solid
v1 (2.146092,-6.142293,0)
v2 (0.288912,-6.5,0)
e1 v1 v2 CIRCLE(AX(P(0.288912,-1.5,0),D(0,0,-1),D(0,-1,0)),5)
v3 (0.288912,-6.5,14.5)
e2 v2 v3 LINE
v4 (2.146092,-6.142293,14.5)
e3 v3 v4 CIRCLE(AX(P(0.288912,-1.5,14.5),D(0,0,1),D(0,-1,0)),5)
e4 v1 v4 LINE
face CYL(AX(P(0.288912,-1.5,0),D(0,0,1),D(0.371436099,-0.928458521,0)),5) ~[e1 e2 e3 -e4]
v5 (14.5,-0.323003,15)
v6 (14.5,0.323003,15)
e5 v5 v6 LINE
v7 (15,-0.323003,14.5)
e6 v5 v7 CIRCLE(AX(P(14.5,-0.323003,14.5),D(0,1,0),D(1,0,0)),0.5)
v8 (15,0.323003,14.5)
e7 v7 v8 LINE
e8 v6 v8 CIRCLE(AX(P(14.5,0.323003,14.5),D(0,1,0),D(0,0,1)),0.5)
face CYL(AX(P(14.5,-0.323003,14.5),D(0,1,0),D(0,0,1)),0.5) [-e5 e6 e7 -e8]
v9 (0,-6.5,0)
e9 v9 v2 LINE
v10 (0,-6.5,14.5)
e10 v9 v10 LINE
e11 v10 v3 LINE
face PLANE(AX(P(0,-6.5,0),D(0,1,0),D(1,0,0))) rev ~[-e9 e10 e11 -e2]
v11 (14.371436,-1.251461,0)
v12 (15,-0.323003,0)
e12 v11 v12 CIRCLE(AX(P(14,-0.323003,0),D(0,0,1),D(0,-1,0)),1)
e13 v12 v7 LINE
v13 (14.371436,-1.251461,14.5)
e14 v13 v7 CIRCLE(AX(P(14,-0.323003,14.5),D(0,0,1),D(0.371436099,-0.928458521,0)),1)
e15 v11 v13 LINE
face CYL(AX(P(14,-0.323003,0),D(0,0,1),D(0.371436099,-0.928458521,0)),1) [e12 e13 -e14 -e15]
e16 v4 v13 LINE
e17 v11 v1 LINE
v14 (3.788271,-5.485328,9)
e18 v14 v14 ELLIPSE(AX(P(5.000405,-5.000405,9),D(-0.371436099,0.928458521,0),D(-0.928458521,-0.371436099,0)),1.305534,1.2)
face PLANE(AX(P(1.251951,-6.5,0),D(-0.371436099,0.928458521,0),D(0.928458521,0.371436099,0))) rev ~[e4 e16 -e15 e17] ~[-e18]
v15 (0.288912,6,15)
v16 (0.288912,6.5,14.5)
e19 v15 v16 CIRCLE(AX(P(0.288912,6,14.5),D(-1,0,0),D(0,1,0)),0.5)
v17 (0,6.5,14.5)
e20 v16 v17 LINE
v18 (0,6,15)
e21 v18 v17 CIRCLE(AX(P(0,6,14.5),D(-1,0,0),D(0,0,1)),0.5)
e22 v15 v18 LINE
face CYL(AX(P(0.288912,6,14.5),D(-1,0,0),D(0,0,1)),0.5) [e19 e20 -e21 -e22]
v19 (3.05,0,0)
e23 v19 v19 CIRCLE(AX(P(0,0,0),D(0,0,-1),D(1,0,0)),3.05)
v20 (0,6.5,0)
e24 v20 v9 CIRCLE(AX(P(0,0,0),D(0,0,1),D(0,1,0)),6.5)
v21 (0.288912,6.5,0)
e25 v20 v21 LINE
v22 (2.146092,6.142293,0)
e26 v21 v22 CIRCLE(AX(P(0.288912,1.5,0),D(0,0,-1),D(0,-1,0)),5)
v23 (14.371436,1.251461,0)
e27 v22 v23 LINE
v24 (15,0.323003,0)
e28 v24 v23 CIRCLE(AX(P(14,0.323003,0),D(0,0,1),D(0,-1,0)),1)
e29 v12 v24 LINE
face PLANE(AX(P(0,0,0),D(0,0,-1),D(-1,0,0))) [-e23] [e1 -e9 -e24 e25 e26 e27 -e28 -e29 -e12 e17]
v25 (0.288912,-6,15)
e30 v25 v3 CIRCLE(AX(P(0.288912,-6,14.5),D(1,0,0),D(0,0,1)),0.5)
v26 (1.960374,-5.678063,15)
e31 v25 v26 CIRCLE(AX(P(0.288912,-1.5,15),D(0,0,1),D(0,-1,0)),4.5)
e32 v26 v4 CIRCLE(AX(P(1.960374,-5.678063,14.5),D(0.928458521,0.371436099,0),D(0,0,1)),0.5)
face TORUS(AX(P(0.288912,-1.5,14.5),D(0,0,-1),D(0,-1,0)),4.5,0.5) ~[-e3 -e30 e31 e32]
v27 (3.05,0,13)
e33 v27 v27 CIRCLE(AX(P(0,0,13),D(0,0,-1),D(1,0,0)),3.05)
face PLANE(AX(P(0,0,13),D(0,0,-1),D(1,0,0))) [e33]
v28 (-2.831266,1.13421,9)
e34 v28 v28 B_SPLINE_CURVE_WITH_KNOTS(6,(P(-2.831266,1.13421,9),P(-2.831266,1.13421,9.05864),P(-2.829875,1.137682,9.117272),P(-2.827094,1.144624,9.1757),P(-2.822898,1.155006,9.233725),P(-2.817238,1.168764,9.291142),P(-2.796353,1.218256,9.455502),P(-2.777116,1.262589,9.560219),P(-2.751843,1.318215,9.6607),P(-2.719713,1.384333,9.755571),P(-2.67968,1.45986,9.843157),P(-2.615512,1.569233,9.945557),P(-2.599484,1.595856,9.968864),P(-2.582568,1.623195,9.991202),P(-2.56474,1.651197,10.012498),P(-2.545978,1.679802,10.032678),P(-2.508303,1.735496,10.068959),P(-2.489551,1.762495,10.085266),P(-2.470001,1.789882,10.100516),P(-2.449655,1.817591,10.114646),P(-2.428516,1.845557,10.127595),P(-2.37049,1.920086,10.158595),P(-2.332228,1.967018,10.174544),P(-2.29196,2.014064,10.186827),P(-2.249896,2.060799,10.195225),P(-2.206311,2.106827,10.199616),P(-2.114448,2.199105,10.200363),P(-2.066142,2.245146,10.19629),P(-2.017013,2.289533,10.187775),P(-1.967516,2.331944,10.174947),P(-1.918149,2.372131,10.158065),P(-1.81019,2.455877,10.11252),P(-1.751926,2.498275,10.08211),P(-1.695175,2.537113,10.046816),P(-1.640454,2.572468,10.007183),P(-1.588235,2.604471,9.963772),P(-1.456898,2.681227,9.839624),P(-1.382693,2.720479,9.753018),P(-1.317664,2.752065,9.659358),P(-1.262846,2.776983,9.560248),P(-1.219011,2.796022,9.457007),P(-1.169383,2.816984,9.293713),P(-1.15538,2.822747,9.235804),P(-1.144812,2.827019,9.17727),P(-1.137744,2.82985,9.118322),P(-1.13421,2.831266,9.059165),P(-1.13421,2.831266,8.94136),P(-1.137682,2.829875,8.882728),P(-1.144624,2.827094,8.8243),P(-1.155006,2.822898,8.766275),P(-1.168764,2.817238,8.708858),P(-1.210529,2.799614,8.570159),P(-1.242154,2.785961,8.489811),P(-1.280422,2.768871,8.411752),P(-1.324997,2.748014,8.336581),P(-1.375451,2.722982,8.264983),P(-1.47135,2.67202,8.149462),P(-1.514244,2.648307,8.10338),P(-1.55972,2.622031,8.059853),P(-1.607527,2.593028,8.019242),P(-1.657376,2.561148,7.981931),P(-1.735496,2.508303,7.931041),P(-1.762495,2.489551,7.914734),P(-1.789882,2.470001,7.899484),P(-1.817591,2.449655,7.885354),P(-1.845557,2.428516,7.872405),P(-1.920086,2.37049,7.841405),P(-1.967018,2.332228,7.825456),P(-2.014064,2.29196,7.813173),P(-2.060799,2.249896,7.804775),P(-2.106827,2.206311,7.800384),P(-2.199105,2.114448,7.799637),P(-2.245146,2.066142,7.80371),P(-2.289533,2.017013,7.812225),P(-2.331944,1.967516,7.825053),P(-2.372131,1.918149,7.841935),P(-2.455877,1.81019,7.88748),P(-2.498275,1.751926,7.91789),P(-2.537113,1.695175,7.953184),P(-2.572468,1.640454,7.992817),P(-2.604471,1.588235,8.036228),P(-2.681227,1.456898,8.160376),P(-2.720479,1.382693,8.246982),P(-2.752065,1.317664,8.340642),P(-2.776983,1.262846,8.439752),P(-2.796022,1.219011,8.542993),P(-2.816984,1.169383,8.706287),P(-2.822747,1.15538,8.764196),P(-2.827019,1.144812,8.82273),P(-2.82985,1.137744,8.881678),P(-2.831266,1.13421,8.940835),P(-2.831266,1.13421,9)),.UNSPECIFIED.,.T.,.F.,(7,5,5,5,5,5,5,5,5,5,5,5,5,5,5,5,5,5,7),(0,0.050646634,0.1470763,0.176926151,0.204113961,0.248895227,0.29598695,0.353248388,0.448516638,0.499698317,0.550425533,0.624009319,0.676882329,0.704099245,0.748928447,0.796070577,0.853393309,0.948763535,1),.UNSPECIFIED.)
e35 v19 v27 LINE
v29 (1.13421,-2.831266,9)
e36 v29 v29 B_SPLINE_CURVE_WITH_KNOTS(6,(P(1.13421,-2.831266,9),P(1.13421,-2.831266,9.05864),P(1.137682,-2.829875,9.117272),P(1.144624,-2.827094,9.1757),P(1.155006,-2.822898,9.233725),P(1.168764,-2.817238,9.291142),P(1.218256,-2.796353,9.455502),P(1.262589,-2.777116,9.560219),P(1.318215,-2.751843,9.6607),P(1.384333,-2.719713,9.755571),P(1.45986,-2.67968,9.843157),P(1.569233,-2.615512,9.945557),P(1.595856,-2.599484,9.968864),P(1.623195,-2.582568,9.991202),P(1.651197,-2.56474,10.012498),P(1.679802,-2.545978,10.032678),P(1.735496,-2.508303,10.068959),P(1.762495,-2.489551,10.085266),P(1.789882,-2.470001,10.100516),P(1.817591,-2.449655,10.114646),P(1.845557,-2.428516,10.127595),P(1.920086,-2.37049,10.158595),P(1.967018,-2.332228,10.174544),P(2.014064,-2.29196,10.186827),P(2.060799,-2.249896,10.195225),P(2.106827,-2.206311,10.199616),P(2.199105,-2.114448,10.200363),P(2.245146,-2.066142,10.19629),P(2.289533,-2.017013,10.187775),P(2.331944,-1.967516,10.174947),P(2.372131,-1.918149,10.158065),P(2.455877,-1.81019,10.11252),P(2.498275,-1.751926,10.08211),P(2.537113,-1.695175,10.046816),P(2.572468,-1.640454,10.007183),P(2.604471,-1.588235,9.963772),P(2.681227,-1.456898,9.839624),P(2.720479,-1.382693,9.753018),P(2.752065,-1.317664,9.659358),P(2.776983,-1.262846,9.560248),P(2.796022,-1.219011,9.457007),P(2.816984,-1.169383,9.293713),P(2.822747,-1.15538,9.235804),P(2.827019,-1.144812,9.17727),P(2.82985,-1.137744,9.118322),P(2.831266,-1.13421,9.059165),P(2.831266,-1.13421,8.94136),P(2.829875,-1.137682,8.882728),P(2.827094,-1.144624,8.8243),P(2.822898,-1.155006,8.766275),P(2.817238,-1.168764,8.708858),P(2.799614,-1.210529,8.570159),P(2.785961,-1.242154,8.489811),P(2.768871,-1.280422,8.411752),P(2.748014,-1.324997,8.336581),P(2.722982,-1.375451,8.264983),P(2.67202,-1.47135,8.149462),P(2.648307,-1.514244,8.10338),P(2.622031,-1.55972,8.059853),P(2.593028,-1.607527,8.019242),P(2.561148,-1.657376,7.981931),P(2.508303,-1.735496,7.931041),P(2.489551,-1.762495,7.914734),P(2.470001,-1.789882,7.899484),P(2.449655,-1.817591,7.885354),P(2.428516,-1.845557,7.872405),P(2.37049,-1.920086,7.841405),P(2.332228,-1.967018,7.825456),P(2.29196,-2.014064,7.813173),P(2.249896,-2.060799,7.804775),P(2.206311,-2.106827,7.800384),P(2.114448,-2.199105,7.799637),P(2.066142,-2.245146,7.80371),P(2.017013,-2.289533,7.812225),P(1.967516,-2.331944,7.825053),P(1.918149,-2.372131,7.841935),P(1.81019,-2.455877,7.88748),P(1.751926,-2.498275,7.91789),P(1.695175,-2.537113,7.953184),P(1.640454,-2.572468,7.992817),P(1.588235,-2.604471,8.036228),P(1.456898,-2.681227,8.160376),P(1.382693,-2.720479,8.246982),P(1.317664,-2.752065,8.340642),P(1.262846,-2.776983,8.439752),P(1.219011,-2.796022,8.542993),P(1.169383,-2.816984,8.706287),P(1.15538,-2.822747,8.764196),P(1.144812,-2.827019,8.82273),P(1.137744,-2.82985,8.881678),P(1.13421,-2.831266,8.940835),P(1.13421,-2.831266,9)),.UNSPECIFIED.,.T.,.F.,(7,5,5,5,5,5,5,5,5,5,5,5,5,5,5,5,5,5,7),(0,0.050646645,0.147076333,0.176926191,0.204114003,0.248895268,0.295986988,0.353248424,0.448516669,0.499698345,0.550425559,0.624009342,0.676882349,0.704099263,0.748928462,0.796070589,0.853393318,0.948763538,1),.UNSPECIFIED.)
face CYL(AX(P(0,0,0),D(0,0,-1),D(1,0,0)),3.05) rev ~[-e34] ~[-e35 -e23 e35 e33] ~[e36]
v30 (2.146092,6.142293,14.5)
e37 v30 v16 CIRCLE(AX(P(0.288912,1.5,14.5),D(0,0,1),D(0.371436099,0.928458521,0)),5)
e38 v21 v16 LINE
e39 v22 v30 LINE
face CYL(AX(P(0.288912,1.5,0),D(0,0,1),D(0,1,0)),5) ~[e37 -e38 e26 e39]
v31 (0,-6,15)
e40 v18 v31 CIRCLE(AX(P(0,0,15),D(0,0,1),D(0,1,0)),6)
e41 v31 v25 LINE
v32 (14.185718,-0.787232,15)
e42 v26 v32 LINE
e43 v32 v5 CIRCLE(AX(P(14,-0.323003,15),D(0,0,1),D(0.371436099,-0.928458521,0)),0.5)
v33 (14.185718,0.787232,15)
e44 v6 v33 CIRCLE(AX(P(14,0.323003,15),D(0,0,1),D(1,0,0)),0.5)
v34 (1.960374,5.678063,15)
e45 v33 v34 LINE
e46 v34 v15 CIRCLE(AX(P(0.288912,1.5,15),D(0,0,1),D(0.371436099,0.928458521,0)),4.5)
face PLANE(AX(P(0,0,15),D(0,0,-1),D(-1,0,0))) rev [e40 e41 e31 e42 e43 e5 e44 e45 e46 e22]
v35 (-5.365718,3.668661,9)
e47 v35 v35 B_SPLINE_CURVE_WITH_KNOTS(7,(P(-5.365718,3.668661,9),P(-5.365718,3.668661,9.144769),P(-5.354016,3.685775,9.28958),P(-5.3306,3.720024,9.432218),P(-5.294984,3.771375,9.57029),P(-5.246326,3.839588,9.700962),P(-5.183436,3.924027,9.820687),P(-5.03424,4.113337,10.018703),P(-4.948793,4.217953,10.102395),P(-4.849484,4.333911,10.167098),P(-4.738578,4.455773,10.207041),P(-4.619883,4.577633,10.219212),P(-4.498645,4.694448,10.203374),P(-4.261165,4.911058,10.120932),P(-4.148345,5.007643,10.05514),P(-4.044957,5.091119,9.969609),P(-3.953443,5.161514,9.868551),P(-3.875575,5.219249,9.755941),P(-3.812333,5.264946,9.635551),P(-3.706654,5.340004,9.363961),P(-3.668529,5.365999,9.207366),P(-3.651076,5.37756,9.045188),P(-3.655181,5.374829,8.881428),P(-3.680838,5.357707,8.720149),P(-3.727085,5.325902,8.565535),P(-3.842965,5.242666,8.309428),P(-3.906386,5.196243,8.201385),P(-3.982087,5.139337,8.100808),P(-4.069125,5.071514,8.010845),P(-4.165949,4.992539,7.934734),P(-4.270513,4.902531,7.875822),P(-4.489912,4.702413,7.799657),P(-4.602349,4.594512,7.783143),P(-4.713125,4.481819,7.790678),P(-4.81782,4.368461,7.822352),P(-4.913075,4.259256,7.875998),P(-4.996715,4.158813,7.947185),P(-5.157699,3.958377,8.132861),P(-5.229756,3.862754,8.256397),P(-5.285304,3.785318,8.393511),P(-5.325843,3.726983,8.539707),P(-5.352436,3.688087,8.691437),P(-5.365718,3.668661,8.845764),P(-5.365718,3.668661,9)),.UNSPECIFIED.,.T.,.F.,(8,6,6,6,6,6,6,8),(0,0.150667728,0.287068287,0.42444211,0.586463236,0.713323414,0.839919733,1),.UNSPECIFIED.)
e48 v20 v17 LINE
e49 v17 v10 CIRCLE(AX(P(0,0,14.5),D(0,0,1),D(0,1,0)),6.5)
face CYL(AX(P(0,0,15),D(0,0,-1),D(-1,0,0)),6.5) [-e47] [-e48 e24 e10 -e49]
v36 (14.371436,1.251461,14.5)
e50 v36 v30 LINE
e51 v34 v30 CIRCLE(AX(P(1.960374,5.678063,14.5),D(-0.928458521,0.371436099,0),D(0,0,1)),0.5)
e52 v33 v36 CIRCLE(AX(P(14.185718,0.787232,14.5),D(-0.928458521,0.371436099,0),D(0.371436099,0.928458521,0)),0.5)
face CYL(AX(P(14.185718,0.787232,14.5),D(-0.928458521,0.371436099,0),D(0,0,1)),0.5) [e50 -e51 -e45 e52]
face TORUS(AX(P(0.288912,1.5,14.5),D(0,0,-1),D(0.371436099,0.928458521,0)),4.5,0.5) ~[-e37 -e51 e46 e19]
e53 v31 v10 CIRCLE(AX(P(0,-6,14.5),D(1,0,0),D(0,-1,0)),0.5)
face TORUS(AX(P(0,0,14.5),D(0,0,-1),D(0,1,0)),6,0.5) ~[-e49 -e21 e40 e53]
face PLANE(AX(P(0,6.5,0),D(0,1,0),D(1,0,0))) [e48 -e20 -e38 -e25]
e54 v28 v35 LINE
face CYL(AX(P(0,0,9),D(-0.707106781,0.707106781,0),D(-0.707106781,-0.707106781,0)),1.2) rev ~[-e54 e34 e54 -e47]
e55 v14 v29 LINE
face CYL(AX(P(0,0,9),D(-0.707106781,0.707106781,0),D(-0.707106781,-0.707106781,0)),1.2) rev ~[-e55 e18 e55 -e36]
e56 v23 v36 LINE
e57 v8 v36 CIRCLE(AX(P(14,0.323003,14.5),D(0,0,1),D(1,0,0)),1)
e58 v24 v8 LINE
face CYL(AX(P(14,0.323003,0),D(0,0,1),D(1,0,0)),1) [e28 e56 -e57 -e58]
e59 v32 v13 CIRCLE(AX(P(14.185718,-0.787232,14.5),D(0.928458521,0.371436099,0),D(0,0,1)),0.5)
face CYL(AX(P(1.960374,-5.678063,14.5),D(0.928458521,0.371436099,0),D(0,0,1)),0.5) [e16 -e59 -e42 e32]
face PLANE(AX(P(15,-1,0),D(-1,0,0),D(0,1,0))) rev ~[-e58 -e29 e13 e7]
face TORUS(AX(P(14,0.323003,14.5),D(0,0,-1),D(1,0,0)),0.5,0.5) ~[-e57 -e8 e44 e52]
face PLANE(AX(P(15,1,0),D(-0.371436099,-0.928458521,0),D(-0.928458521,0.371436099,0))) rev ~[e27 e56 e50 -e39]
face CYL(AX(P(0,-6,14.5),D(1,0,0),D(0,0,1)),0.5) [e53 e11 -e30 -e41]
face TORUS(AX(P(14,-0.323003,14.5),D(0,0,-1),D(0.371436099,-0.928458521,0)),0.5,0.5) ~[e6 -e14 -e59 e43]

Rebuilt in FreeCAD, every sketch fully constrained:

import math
import FreeCAD as App
import Part
import Sketcher
from FreeCAD import Vector
Q = App.Units.Quantity


def edges_at(feature, points):
    """Names of the edges that pass closest to the given points."""
    edges = feature.Shape.Edges
    near = lambda p: min(range(len(edges)), key=lambda i: edges[i].distToShape(Part.Vertex(*p))[0])
    return sorted({f"Edge{near(p) + 1}" for p in points})


def add_polygon(sketch, points):
    """Adds a closed chain of lines whose ends are joined by coincident constraints."""
    first, n = sketch.GeometryCount, len(points)
    for a, b in zip(points, points[1:] + points[:1]):
        sketch.addGeometry(Part.LineSegment(App.Vector(*a, 0), App.Vector(*b, 0)), False)
    for i in range(n):
        sketch.addConstraint(Sketcher.Constraint("Coincident", first + i, 2, first + (i + 1) % n, 1))

doc = App.newDocument("Part")
params = doc.addObject("Spreadsheet::Sheet", "Params")
for row, (alias, value) in enumerate([
    ("sketch1_height", "15 mm"),
    ("sketch1_width", "6.5 mm"),
    ("revolution_angle", "360 deg"),
    ("sketch2_radius", "6.5 mm"),
    ("sketch2_height", "2 mm"),
    ("pad1_length", "15 mm"),
    ("fillet_radius", "5 mm"),
    ("fillet2_radius", "1 mm"),
    ("sketch3_diameter", "6.1 mm"),
    ("pocket1_length", "13 mm"),
    ("fillet3_radius", "0.5 mm"),
    ("sketch4_diameter", "2.4 mm"),
    ("pocket2_length", "25 mm"),
], start=1):
    params.set(f"A{row}", alias)
    params.set(f"B{row}", "=" + value)
    params.setAlias(f"B{row}", alias)

body = doc.addObject("PartDesign::Body", "Body")

# Sketch on XZ plane
sketch1 = body.newObject("Sketcher::SketchObject", "Sketch")
sketch1.AttachmentSupport = (doc.getObject("XZ_Plane"), [""])
sketch1.MapMode = "FlatFace"
add_polygon(sketch1, [(0, 0), (0, 15), (-6, 15), (-6, 0)])  # lines 0-3
sketch1.addConstraint(Sketcher.Constraint("Vertical", 0))
sketch1.addConstraint(Sketcher.Constraint("Horizontal", 1))
sketch1.addConstraint(Sketcher.Constraint("Vertical", 2))
sketch1.addConstraint(Sketcher.Constraint("Horizontal", 3))
sketch1.addConstraint(Sketcher.Constraint("Coincident", 3, 2, -1, 1))
sketch1.addConstraint(Sketcher.Constraint("DistanceY", 0, 1, 0, 2, Q("15 mm")))
sketch1.addConstraint(Sketcher.Constraint("DistanceX", 1, 2, 1, 1, Q("6.5 mm")))
sketch1.setExpression("Constraints[9]", "Params.sketch1_height")
sketch1.setExpression("Constraints[10]", "Params.sketch1_width")
revolution = body.newObject("PartDesign::Revolution", "Revolution")
revolution.Profile = sketch1
revolution.ReferenceAxis = (sketch1, ["V_Axis"])
revolution.setExpression("Angle", "Params.revolution_angle")

# Sketch on XY plane
sketch2 = body.newObject("Sketcher::SketchObject", "Sketch001")
sketch2.AttachmentSupport = (doc.getObject("XY_Plane"), [""])
sketch2.MapMode = "FlatFace"
sketch2.addGeometry(Part.ArcOfCircle(Part.Circle(Vector(0, 0, 0), Vector(0, 0, 1), 6.5), math.radians(90), math.radians(270)), False)
sketch2.addGeometry(Part.LineSegment(Vector(0, -6.5, 0), Vector(1.3, -6.5, 0)), False)
sketch2.addGeometry(Part.LineSegment(Vector(1.3, -6.5, 0), Vector(15, -1, 0)), False)
sketch2.addGeometry(Part.LineSegment(Vector(15, -1, 0), Vector(15, 1, 0)), False)
sketch2.addGeometry(Part.LineSegment(Vector(15, 1, 0), Vector(1.3, 6.5, 0)), False)
sketch2.addGeometry(Part.LineSegment(Vector(1.3, 6.5, 0), Vector(0, 6.5, 0)), False)
sketch2.addConstraint(Sketcher.Constraint("Tangent", 0, 2, 1, 1))
sketch2.addConstraint(Sketcher.Constraint("Coincident", 1, 2, 2, 1))
sketch2.addConstraint(Sketcher.Constraint("Coincident", 2, 2, 3, 1))
sketch2.addConstraint(Sketcher.Constraint("Coincident", 3, 2, 4, 1))
sketch2.addConstraint(Sketcher.Constraint("Coincident", 4, 2, 5, 1))
sketch2.addConstraint(Sketcher.Constraint("Tangent", 5, 2, 0, 1))
sketch2.addConstraint(Sketcher.Constraint("Horizontal", 1))
sketch2.addConstraint(Sketcher.Constraint("Vertical", 3))
sketch2.addConstraint(Sketcher.Constraint("Horizontal", 5))
sketch2.addConstraint(Sketcher.Constraint("Coincident", 0, 3, -1, 1))
sketch2.addConstraint(Sketcher.Constraint("Vertical", 1, 2, 4, 2))
sketch2.addConstraint(Sketcher.Constraint("Equal", 2, 4))
sketch2.addConstraint(Sketcher.Constraint("Radius", 0, Q("6.5 mm")))
sketch2.addConstraint(Sketcher.Constraint("DistanceY", 3, 1, 3, 2, Q("2 mm")))
sketch2.addConstraint(Sketcher.Constraint("DistanceX", -1, 1, 2, 2, Q("15 mm")))
sketch2.addConstraint(Sketcher.Constraint("DistanceX", 1, 1, 1, 2, Q("1.251951 mm")))
sketch2.setExpression("Constraints[12]", "Params.sketch2_radius")
sketch2.setExpression("Constraints[13]", "Params.sketch2_height")
pad1 = body.newObject("PartDesign::Pad", "Pad")
pad1.Profile = sketch2
pad1.setExpression("Length", "Params.pad1_length")
doc.recompute()

fillet = body.newObject("PartDesign::Fillet", "Fillet")
fillet.Base = (pad1, edges_at(pad1, [(1.252, 6.5, 7.5), (1.252, -6.5, 7.5)]))
fillet.setExpression("Radius", "Params.fillet_radius")
doc.recompute()

fillet2 = body.newObject("PartDesign::Fillet", "Fillet001")
fillet2.Base = (fillet, edges_at(fillet, [(15, 1, 7.5), (15, -1, 7.5)]))
fillet2.setExpression("Radius", "Params.fillet2_radius")

# Sketch on XY plane
sketch3 = body.newObject("Sketcher::SketchObject", "Sketch002")
sketch3.AttachmentSupport = (doc.getObject("XY_Plane"), [""])
sketch3.MapMode = "FlatFace"
sketch3.addGeometry(Part.Circle(Vector(0, 0, 0), Vector(0, 0, 1), 3), False)
sketch3.addConstraint(Sketcher.Constraint("Coincident", 0, 3, -1, 1))
sketch3.addConstraint(Sketcher.Constraint("Diameter", 0, Q("6.1 mm")))
sketch3.setExpression("Constraints[1]", "Params.sketch3_diameter")
pocket1 = body.newObject("PartDesign::Pocket", "Pocket")
pocket1.Profile = sketch3
pocket1.setExpression("Length", "Params.pocket1_length")
pocket1.Reversed = True
doc.recompute()

fillet3 = body.newObject("PartDesign::Fillet", "Fillet002")
fillet3.Base = (pocket1, edges_at(pocket1, [
    (8.259, -3.697, 15),
    (14.828, -0.884, 15),
    (1.235, -6.41, 15),
    (15, 0, 15),
    (0.144, -6.5, 15),
    (14.828, 0.884, 15),
    (-6.5, 0, 15),
    (8.259, 3.697, 15),
    (0.144, 6.5, 15),
    (1.235, 6.41, 15),
]))
fillet3.setExpression("Radius", "Params.fillet3_radius")

# Sketch on an angled plane
sketch4 = body.newObject("Sketcher::SketchObject", "Sketch003")
sketch4.Placement = App.Placement(Vector(0, 0, 0), App.Rotation(Vector(-0.707106781, -0.707106781, 0), Vector(0, 0, 0.999999999), Vector(-0.707106781, 0.707106781, 0), "ZXY"))
sketch4.addGeometry(Part.Circle(Vector(0, 9, 0), Vector(0, 0, 1), 1.2), False)
sketch4.addConstraint(Sketcher.Constraint("PointOnObject", 0, 3, -2))
sketch4.addConstraint(Sketcher.Constraint("Diameter", 0, Q("2.4 mm")))
sketch4.addConstraint(Sketcher.Constraint("DistanceY", -1, 1, 0, 3, Q("9 mm")))
sketch4.setExpression("Constraints[1]", "Params.sketch4_diameter")
pocket2 = body.newObject("PartDesign::Pocket", "Pocket001")
pocket2.Profile = sketch4
pocket2.setExpression("Length", "Params.pocket2_length")
pocket2.Midplane = True

doc.recompute()
